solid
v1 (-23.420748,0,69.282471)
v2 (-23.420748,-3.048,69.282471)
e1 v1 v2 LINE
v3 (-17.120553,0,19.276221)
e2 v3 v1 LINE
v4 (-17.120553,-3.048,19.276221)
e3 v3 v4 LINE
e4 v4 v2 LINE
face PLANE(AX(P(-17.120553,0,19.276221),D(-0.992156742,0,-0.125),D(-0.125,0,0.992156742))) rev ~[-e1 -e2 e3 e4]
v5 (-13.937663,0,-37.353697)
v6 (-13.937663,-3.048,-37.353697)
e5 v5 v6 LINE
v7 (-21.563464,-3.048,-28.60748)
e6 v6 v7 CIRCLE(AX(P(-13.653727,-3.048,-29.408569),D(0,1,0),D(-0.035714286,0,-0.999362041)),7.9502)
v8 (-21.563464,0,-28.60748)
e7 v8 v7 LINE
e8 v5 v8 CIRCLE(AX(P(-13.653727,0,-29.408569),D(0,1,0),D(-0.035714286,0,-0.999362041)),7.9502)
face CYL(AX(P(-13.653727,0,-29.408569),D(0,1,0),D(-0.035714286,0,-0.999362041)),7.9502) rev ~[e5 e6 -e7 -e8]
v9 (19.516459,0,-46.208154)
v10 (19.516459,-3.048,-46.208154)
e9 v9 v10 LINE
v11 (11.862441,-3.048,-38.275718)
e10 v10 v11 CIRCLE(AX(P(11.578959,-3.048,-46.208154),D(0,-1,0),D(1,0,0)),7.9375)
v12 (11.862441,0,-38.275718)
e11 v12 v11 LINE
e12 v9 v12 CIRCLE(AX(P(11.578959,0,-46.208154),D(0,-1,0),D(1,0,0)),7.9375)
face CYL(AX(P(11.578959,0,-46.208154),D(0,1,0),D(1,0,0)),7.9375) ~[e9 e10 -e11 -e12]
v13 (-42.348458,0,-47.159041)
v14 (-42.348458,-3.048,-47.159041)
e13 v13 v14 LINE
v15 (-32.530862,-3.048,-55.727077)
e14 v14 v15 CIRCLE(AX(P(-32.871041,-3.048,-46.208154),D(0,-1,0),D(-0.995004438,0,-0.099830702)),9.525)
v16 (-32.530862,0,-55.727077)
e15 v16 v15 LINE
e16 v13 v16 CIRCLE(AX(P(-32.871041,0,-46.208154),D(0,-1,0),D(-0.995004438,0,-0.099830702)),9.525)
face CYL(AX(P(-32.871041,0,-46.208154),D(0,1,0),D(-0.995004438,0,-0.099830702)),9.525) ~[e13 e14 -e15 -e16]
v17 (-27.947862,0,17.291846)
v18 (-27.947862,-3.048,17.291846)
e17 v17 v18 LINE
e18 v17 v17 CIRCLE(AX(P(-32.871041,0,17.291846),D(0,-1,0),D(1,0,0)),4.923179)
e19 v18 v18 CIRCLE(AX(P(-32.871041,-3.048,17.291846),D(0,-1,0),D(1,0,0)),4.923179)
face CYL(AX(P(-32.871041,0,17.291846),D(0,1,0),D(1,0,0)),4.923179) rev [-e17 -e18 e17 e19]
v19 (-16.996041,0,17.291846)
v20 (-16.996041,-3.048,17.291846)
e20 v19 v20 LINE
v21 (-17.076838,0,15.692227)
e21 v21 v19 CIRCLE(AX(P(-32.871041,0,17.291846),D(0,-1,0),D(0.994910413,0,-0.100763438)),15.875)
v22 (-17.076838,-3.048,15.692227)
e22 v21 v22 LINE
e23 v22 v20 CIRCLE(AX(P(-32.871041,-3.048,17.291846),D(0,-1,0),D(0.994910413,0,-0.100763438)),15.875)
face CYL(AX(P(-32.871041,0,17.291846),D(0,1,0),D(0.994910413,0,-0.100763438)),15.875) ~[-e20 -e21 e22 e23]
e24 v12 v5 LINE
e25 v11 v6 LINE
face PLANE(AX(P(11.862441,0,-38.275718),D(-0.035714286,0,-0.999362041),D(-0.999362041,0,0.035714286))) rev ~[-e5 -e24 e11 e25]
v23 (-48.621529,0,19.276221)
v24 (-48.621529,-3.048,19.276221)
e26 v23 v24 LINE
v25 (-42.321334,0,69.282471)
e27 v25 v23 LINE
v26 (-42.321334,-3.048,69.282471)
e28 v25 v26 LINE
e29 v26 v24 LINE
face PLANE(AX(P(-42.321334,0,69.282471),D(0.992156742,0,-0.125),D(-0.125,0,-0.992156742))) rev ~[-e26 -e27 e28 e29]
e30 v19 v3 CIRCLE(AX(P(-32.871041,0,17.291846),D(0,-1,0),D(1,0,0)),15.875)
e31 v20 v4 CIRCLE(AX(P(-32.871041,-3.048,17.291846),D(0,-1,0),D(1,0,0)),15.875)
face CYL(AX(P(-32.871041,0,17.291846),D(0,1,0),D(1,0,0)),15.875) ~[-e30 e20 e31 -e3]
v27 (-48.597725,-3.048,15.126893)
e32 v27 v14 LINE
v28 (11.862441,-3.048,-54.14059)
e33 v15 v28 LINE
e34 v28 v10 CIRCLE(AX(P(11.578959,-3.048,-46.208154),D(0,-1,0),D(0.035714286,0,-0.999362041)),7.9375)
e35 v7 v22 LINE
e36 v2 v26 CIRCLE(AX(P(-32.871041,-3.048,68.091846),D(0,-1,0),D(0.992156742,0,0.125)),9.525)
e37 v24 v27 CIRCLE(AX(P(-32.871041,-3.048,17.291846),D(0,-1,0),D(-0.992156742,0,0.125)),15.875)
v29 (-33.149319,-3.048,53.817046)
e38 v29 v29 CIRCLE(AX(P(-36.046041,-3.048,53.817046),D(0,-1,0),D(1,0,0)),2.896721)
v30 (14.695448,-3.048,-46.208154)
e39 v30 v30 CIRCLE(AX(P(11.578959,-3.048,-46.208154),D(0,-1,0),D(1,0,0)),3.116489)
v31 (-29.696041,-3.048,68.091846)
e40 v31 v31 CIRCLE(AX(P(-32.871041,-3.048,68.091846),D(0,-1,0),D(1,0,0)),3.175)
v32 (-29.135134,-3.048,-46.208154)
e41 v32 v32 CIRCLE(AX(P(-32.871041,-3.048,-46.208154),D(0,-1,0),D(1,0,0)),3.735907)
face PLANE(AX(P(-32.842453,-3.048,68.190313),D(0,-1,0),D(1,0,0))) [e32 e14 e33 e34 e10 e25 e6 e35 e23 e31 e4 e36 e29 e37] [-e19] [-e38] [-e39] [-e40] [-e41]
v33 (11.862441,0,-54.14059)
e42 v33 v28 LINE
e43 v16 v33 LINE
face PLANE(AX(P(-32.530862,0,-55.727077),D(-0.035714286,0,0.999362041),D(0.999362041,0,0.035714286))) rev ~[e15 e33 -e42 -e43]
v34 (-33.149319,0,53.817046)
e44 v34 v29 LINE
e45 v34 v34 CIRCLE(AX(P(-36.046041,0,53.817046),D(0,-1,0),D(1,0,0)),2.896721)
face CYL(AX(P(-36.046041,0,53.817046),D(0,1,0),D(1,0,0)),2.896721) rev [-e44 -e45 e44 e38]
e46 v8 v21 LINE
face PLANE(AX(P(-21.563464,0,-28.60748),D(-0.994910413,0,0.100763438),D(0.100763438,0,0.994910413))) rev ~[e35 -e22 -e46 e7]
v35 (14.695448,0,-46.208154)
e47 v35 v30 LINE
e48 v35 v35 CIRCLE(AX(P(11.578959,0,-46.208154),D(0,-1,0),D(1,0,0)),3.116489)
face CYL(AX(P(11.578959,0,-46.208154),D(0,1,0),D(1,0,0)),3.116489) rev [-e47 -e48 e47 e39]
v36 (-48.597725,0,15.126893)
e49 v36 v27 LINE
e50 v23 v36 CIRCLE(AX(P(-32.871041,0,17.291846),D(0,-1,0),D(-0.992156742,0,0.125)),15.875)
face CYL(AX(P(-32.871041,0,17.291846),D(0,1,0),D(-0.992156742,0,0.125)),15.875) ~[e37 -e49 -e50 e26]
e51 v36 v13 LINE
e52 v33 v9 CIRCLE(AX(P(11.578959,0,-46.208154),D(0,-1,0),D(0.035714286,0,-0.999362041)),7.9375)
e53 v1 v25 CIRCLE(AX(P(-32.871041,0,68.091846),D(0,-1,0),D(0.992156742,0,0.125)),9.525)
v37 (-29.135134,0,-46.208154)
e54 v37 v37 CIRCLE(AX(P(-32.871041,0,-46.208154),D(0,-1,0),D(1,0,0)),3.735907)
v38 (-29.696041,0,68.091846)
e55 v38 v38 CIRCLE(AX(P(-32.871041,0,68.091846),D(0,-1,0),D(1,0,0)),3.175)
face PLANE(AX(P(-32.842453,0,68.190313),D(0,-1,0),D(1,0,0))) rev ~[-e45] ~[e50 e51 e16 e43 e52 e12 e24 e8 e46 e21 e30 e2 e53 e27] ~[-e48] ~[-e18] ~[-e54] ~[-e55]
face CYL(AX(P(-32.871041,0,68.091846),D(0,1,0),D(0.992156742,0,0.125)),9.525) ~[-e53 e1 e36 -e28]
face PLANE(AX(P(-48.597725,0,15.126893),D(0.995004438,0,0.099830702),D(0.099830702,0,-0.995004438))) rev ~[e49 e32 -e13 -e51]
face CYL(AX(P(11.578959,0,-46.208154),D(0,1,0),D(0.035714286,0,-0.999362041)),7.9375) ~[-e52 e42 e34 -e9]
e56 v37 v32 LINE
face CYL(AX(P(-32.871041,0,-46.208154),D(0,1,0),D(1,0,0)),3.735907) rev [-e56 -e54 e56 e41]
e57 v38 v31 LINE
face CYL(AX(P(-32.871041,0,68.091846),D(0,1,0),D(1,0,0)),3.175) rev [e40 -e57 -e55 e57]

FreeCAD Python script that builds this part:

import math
import FreeCAD as App
import Part
import Sketcher
from FreeCAD import Vector
Q = App.Units.Quantity

doc = App.newDocument("Part")
body = doc.addObject("PartDesign::Body", "Body")

# Sketch on XZ plane
sketch1 = body.newObject("Sketcher::SketchObject", "Sketch")
sketch1.AttachmentSupport = (doc.getObject("XZ_Plane"), [""])
sketch1.MapMode = "FlatFace"
sketch1.addGeometry(Part.ArcOfCircle(Part.Circle(Vector(-32.9, 68.1, 0), Vector(0, 0, 1), 9.5), math.radians(7), math.radians(173)), False)
sketch1.addGeometry(Part.LineSegment(Vector(-42.3, 69.3, 0), Vector(-48.6, 19.3, 0)), False)
sketch1.addGeometry(Part.ArcOfCircle(Part.Circle(Vector(-32.9, 17.3, 0), Vector(0, 0, 1), 15.9), math.radians(172.82), math.radians(187.84)), False)
sketch1.addGeometry(Part.LineSegment(Vector(-48.6, 15.1, 0), Vector(-42.3, -47.2, 0)), False)
sketch1.addGeometry(Part.ArcOfCircle(Part.Circle(Vector(-32.9, -46.2, 0), Vector(0, 0, 1), 9.5), math.radians(-174), math.radians(-88)), False)
sketch1.addGeometry(Part.LineSegment(Vector(-32.5, -55.7, 0), Vector(11.9, -54.1, 0)), False)
sketch1.addGeometry(Part.ArcOfCircle(Part.Circle(Vector(11.6, -46.2, 0), Vector(0, 0, 1), 7.9), math.radians(-88), math.radians(0)), False)
sketch1.addGeometry(Part.ArcOfCircle(Part.Circle(Vector(11.6, -46.2, 0), Vector(0, 0, 1), 7.9), math.radians(0), math.radians(88)), False)
sketch1.addGeometry(Part.LineSegment(Vector(11.9, -38.3, 0), Vector(-13.9, -37.4, 0)), False)
sketch1.addGeometry(Part.ArcOfCircle(Part.Circle(Vector(-13.7, -29.4, 0), Vector(0, 0, 1), 8), math.radians(174), math.radians(268)), False)
sketch1.addGeometry(Part.LineSegment(Vector(-21.6, -28.6, 0), Vector(-17.1, 15.7, 0)), False)
sketch1.addGeometry(Part.ArcOfCircle(Part.Circle(Vector(-32.9, 17.3, 0), Vector(0, 0, 1), 15.9), math.radians(-5.78), math.radians(0)), False)
sketch1.addGeometry(Part.ArcOfCircle(Part.Circle(Vector(-32.9, 17.3, 0), Vector(0, 0, 1), 15.9), math.radians(0), math.radians(7.18)), False)
sketch1.addGeometry(Part.LineSegment(Vector(-17.1, 19.3, 0), Vector(-23.4, 69.3, 0)), False)
sketch1.addGeometry(Part.Circle(Vector(-32.9, -46.2, 0), Vector(0, 0, 1), 3.7), False)
sketch1.addGeometry(Part.Circle(Vector(11.6, -46.2, 0), Vector(0, 0, 1), 3.1), False)
sketch1.addGeometry(Part.Circle(Vector(-32.9, 17.3, 0), Vector(0, 0, 1), 4.9), False)
sketch1.addGeometry(Part.Circle(Vector(-36, 53.8, 0), Vector(0, 0, 1), 2.9), False)
sketch1.addGeometry(Part.Circle(Vector(-32.9, 68.1, 0), Vector(0, 0, 1), 3.2), False)
sketch1.addConstraint(Sketcher.Constraint("Tangent", 0, 2, 1, 1))
sketch1.addConstraint(Sketcher.Constraint("Tangent", 1, 2, 2, 1))
sketch1.addConstraint(Sketcher.Constraint("Coincident", 2, 2, 3, 1))
sketch1.addConstraint(Sketcher.Constraint("Tangent", 3, 2, 4, 1))
sketch1.addConstraint(Sketcher.Constraint("Tangent", 4, 2, 5, 1))
sketch1.addConstraint(Sketcher.Constraint("Tangent", 5, 2, 6, 1))
sketch1.addConstraint(Sketcher.Constraint("Tangent", 6, 2, 7, 1))
sketch1.addConstraint(Sketcher.Constraint("Tangent", 7, 2, 8, 1))
sketch1.addConstraint(Sketcher.Constraint("Tangent", 8, 2, 9, 2))
sketch1.addConstraint(Sketcher.Constraint("Tangent", 9, 1, 10, 1))
sketch1.addConstraint(Sketcher.Constraint("Tangent", 10, 2, 11, 1))
sketch1.addConstraint(Sketcher.Constraint("Tangent", 11, 2, 12, 1))
sketch1.addConstraint(Sketcher.Constraint("Tangent", 12, 2, 13, 1))
sketch1.addConstraint(Sketcher.Constraint("Tangent", 13, 2, 0, 1))
sketch1.addConstraint(Sketcher.Constraint("Coincident", 11, 3, 2, 3))
sketch1.addConstraint(Sketcher.Constraint("Coincident", 14, 3, 4, 3))
sketch1.addConstraint(Sketcher.Constraint("Coincident", 15, 3, 6, 3))
sketch1.addConstraint(Sketcher.Constraint("Coincident", 16, 3, 2, 3))
sketch1.addConstraint(Sketcher.Constraint("Coincident", 18, 3, 0, 3))
sketch1.addConstraint(Sketcher.Constraint("Equal", 0, 4))
sketch1.addConstraint(Sketcher.Constraint("Equal", 6, 7))
sketch1.addConstraint(Sketcher.Constraint("Equal", 2, 11))
sketch1.addConstraint(Sketcher.Constraint("Equal", 11, 12))
sketch1.addConstraint(Sketcher.Constraint("Horizontal", 4, 3, 6, 3))
sketch1.addConstraint(Sketcher.Constraint("Horizontal", 15, 3, 6, 2))
sketch1.addConstraint(Sketcher.Constraint("Horizontal", 16, 3, 11, 2))
sketch1.addConstraint(Sketcher.Constraint("Horizontal", 1, 2, 12, 2))
sketch1.addConstraint(Sketcher.Constraint("Vertical", 2, 3, 4, 3))
sketch1.addConstraint(Sketcher.Constraint("Vertical", 5, 2, 7, 2))
sketch1.addConstraint(Sketcher.Constraint("Diameter", 18, Q("0.25 in")))
sketch1.addConstraint(Sketcher.Constraint("Radius", 0, Q("0.375 in")))
sketch1.addConstraint(Sketcher.Constraint("Radius", 2, Q("0.625 in")))
sketch1.addConstraint(Sketcher.Constraint("Radius", 6, Q("0.3125 in")))
sketch1.addConstraint(Sketcher.Constraint("Radius", 9, Q("0.313 in")))
sketch1.addConstraint(Sketcher.Constraint("DistanceY", 2, 3, 0, 3, Q("2 in")))
sketch1.addConstraint(Sketcher.Constraint("DistanceY", 4, 3, 2, 3, Q("2.5 in")))
sketch1.addConstraint(Sketcher.Constraint("DistanceX", 4, 3, 6, 3, Q("1.75 in")))
sketch1.addConstraint(Sketcher.Constraint("Diameter", 16, 9.846359))
sketch1.addConstraint(Sketcher.Constraint("DistanceX", 17, 3, 0, 3, Q("0.125 in")))
sketch1.addConstraint(Sketcher.Constraint("DistanceY", 17, 3, 0, 3, Q("0.562 in")))
sketch1.addConstraint(Sketcher.Constraint("Diameter", 14, 7.471813))
sketch1.addConstraint(Sketcher.Constraint("Diameter", 15, 6.232977))
sketch1.addConstraint(Sketcher.Constraint("Diameter", 17, 5.793443))
sketch1.addConstraint(Sketcher.Constraint("DistanceY", 7, 2, 8, 2, Q("0.0363 in")))
sketch1.addConstraint(Sketcher.Constraint("Distance", 3, 62.59865))
sketch1.addConstraint(Sketcher.Constraint("DistanceX", 0, 3, -1, 1, 32.871041))
sketch1.addConstraint(Sketcher.Constraint("DistanceY", 9, 3, -1, 1, 29.408569))
pad1 = body.newObject("PartDesign::Pad", "Pad")
pad1.Profile = sketch1
pad1.Length = Q("0.12 in")

doc.recompute()
